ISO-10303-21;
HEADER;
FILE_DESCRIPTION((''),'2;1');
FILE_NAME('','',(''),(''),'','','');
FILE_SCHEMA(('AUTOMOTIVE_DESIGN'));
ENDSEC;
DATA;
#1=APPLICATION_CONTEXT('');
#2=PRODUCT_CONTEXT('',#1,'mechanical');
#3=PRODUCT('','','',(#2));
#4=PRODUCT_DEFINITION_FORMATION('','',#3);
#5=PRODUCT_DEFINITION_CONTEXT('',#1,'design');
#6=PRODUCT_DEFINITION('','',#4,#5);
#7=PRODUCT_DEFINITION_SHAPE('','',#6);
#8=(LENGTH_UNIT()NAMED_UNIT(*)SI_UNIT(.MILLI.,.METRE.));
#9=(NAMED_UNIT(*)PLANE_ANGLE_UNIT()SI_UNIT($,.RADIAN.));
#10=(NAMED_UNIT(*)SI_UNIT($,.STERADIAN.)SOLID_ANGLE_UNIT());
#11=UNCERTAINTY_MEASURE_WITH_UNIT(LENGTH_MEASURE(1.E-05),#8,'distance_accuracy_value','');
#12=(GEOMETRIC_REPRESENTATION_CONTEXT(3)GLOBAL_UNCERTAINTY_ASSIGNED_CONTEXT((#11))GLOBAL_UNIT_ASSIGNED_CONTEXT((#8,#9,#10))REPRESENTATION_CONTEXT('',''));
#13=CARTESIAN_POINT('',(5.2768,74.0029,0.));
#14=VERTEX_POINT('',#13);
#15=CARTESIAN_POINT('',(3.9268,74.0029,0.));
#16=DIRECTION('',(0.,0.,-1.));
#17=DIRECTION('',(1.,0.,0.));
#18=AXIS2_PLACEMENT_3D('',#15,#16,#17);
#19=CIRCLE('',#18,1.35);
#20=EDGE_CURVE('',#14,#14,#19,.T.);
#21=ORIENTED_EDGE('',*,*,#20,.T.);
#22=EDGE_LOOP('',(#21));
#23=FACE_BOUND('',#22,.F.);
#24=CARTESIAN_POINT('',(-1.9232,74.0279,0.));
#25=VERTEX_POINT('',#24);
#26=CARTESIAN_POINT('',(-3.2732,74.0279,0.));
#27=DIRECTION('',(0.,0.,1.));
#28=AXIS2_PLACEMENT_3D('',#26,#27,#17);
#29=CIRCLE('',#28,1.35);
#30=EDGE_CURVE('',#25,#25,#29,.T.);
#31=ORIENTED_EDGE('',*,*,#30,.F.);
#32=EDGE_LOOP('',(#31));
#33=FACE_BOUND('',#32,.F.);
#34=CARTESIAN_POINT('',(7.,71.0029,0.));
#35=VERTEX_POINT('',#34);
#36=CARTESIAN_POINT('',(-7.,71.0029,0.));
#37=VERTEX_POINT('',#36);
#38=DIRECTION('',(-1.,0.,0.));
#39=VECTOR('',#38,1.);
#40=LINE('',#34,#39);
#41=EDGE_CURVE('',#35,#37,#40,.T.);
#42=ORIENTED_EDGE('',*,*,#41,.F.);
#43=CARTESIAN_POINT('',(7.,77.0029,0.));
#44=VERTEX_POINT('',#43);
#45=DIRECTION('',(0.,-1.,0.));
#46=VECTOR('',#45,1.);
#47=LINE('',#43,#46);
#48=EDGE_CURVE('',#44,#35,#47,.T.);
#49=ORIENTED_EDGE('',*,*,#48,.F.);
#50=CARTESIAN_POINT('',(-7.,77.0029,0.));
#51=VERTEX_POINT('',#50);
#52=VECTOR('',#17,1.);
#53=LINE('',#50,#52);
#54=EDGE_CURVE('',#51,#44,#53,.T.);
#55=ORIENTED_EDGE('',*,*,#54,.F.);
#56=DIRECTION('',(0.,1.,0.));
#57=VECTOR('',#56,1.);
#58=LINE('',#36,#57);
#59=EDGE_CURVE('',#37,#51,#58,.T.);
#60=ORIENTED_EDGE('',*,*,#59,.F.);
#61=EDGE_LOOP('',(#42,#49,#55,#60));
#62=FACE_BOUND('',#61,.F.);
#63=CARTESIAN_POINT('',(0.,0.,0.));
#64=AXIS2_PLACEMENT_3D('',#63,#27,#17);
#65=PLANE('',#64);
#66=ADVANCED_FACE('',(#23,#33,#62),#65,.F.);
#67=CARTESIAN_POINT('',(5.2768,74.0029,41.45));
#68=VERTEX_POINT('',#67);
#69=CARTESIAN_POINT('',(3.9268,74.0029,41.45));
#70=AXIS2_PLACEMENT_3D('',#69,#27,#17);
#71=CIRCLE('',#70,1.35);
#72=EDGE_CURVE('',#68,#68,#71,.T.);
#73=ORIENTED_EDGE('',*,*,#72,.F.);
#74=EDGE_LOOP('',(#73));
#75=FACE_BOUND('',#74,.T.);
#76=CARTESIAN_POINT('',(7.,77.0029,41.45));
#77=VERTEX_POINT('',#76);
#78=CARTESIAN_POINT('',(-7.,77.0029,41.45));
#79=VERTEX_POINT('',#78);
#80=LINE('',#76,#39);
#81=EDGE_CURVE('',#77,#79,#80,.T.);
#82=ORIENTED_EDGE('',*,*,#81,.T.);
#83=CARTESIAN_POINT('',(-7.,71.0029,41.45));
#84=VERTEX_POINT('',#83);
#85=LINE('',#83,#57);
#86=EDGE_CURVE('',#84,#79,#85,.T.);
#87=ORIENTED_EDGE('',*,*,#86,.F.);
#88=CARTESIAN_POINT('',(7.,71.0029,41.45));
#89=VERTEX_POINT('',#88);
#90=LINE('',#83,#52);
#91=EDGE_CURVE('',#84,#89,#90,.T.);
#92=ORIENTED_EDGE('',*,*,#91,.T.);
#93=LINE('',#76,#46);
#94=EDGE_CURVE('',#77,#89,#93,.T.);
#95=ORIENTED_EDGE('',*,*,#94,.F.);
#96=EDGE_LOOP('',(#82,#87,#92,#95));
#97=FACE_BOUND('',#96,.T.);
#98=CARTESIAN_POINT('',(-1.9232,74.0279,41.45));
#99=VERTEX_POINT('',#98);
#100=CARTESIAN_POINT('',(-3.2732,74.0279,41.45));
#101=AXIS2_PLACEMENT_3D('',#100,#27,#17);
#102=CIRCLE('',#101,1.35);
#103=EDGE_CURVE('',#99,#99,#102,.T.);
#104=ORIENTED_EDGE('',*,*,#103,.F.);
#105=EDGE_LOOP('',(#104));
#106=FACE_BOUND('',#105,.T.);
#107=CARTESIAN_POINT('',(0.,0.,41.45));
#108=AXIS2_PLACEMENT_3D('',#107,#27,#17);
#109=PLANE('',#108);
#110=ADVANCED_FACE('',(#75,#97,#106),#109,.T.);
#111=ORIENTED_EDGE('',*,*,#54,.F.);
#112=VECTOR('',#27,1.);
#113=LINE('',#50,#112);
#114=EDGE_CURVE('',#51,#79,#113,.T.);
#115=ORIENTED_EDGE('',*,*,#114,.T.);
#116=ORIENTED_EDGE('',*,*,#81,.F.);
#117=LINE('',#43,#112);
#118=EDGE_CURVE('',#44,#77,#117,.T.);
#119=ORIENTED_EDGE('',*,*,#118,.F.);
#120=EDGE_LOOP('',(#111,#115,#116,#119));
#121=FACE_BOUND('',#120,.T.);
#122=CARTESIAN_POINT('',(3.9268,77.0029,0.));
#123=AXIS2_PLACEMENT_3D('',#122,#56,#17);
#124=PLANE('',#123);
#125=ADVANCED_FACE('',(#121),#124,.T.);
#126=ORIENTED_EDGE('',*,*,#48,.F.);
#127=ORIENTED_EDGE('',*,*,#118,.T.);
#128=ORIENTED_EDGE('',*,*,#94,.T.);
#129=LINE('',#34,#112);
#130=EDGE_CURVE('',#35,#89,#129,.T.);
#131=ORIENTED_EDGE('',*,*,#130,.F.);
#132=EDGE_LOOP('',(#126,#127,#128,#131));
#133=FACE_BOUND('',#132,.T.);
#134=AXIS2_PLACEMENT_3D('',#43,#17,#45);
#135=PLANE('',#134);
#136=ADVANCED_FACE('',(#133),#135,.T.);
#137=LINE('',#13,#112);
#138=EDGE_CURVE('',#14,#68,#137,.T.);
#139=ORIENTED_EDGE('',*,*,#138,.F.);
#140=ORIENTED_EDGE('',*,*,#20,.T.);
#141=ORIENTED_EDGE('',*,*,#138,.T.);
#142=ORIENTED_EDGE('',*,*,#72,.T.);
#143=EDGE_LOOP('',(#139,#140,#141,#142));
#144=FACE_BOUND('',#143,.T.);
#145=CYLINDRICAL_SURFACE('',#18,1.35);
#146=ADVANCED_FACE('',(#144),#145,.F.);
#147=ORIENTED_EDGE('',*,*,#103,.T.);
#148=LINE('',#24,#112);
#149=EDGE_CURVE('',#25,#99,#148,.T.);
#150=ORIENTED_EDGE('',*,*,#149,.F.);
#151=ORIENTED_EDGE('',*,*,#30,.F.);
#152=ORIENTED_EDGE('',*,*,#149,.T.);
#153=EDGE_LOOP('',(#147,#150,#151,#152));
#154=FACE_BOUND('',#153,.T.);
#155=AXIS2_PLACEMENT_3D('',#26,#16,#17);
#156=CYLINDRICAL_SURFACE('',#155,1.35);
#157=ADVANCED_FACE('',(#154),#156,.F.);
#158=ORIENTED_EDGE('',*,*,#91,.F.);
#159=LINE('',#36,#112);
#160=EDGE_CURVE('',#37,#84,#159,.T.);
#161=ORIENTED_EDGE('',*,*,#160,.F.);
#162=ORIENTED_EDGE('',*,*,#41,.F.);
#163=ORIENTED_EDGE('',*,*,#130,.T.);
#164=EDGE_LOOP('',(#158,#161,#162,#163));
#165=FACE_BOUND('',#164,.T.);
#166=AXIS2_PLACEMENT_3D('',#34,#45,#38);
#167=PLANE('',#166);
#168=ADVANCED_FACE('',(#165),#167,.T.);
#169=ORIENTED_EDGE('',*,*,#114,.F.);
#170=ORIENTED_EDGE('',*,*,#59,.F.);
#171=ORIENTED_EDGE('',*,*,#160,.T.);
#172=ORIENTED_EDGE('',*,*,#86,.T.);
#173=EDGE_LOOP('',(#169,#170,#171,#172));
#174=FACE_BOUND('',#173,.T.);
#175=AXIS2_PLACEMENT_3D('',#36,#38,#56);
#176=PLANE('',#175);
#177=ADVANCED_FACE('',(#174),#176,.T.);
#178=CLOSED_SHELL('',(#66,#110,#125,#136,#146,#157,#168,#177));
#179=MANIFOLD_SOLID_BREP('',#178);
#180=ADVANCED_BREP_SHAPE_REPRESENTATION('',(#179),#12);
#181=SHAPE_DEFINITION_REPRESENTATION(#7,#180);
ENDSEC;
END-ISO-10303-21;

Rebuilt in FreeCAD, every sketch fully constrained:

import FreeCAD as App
import Part
import Sketcher

V = App.Vector
Q = App.Units.Quantity

doc = App.newDocument("Part")
params = doc.addObject("Spreadsheet::Sheet", "Params")
for row, (alias, value) in enumerate([
    ("sketch1_width", "14 mm"),
    ("sketch1_diameter", "2.7 mm"),
    ("pad1_length", "41.45 mm"),
], start=1):
    params.set(f"A{row}", alias)
    params.set(f"B{row}", "=" + value)
    params.setAlias(f"B{row}", alias)

body = doc.addObject("PartDesign::Body", "Body")

sketch1 = doc.addObject("Sketcher::SketchObject", "Sketch")
body.addObject(sketch1)
sketch1.AttachmentSupport = (doc.XY_Plane, [""])
sketch1.MapMode = "FlatFace"
sketch1.addGeometry([
    Part.LineSegment(V(7, 77, 0), V(-7, 77, 0)),
    Part.LineSegment(V(-7, 77, 0), V(-7, 71, 0)),
    Part.LineSegment(V(-7, 71, 0), V(7, 71, 0)),
    Part.LineSegment(V(7, 71, 0), V(7, 77, 0)),
    Part.Circle(V(3.9, 74, 0), V(0, 0, 1), 1.4),
    Part.Circle(V(-3.3, 74, 0), V(0, 0, 1), 1.4),
], False)
sketch1.addConstraint([
    Sketcher.Constraint("Coincident", 0, 2, 1, 1),
    Sketcher.Constraint("Coincident", 1, 2, 2, 1),
    Sketcher.Constraint("Coincident", 2, 2, 3, 1),
    Sketcher.Constraint("Coincident", 3, 2, 0, 1),
    Sketcher.Constraint("Horizontal", 0),
    Sketcher.Constraint("Vertical", 1),
    Sketcher.Constraint("Horizontal", 2),
    Sketcher.Constraint("Vertical", 3),
    Sketcher.Constraint("Equal", 4, 5),
    Sketcher.Constraint("DistanceX", 0, 2, 0, 1, Q("14 mm")),
    Sketcher.Constraint("DistanceY", 4, 3, 0, 2, Q("3 mm")),
    Sketcher.Constraint("DistanceY", 1, 2, 4, 3, Q("3 mm")),
    Sketcher.Constraint("Diameter", 4, Q("2.7 mm")),
    Sketcher.Constraint("DistanceX", 0, 2, -1, 1, Q("7 mm")),
    Sketcher.Constraint("DistanceX", 5, 3, 4, 3, Q("7.2 mm")),
    Sketcher.Constraint("DistanceY", -1, 1, 4, 3, Q("74.003 mm")),
    Sketcher.Constraint("DistanceY", -1, 1, 5, 3, Q("74.028 mm")),
    Sketcher.Constraint("DistanceX", -1, 1, 4, 3, Q("3.9268 mm")),
])
sketch1.setExpression("Constraints[9]", "Params.sketch1_width")
sketch1.setExpression("Constraints[12]", "Params.sketch1_diameter")
pad1 = doc.addObject("PartDesign::Pad", "Pad")
body.addObject(pad1)
pad1.Profile = sketch1
pad1.setExpression("Length", "Params.pad1_length")

doc.recompute()
